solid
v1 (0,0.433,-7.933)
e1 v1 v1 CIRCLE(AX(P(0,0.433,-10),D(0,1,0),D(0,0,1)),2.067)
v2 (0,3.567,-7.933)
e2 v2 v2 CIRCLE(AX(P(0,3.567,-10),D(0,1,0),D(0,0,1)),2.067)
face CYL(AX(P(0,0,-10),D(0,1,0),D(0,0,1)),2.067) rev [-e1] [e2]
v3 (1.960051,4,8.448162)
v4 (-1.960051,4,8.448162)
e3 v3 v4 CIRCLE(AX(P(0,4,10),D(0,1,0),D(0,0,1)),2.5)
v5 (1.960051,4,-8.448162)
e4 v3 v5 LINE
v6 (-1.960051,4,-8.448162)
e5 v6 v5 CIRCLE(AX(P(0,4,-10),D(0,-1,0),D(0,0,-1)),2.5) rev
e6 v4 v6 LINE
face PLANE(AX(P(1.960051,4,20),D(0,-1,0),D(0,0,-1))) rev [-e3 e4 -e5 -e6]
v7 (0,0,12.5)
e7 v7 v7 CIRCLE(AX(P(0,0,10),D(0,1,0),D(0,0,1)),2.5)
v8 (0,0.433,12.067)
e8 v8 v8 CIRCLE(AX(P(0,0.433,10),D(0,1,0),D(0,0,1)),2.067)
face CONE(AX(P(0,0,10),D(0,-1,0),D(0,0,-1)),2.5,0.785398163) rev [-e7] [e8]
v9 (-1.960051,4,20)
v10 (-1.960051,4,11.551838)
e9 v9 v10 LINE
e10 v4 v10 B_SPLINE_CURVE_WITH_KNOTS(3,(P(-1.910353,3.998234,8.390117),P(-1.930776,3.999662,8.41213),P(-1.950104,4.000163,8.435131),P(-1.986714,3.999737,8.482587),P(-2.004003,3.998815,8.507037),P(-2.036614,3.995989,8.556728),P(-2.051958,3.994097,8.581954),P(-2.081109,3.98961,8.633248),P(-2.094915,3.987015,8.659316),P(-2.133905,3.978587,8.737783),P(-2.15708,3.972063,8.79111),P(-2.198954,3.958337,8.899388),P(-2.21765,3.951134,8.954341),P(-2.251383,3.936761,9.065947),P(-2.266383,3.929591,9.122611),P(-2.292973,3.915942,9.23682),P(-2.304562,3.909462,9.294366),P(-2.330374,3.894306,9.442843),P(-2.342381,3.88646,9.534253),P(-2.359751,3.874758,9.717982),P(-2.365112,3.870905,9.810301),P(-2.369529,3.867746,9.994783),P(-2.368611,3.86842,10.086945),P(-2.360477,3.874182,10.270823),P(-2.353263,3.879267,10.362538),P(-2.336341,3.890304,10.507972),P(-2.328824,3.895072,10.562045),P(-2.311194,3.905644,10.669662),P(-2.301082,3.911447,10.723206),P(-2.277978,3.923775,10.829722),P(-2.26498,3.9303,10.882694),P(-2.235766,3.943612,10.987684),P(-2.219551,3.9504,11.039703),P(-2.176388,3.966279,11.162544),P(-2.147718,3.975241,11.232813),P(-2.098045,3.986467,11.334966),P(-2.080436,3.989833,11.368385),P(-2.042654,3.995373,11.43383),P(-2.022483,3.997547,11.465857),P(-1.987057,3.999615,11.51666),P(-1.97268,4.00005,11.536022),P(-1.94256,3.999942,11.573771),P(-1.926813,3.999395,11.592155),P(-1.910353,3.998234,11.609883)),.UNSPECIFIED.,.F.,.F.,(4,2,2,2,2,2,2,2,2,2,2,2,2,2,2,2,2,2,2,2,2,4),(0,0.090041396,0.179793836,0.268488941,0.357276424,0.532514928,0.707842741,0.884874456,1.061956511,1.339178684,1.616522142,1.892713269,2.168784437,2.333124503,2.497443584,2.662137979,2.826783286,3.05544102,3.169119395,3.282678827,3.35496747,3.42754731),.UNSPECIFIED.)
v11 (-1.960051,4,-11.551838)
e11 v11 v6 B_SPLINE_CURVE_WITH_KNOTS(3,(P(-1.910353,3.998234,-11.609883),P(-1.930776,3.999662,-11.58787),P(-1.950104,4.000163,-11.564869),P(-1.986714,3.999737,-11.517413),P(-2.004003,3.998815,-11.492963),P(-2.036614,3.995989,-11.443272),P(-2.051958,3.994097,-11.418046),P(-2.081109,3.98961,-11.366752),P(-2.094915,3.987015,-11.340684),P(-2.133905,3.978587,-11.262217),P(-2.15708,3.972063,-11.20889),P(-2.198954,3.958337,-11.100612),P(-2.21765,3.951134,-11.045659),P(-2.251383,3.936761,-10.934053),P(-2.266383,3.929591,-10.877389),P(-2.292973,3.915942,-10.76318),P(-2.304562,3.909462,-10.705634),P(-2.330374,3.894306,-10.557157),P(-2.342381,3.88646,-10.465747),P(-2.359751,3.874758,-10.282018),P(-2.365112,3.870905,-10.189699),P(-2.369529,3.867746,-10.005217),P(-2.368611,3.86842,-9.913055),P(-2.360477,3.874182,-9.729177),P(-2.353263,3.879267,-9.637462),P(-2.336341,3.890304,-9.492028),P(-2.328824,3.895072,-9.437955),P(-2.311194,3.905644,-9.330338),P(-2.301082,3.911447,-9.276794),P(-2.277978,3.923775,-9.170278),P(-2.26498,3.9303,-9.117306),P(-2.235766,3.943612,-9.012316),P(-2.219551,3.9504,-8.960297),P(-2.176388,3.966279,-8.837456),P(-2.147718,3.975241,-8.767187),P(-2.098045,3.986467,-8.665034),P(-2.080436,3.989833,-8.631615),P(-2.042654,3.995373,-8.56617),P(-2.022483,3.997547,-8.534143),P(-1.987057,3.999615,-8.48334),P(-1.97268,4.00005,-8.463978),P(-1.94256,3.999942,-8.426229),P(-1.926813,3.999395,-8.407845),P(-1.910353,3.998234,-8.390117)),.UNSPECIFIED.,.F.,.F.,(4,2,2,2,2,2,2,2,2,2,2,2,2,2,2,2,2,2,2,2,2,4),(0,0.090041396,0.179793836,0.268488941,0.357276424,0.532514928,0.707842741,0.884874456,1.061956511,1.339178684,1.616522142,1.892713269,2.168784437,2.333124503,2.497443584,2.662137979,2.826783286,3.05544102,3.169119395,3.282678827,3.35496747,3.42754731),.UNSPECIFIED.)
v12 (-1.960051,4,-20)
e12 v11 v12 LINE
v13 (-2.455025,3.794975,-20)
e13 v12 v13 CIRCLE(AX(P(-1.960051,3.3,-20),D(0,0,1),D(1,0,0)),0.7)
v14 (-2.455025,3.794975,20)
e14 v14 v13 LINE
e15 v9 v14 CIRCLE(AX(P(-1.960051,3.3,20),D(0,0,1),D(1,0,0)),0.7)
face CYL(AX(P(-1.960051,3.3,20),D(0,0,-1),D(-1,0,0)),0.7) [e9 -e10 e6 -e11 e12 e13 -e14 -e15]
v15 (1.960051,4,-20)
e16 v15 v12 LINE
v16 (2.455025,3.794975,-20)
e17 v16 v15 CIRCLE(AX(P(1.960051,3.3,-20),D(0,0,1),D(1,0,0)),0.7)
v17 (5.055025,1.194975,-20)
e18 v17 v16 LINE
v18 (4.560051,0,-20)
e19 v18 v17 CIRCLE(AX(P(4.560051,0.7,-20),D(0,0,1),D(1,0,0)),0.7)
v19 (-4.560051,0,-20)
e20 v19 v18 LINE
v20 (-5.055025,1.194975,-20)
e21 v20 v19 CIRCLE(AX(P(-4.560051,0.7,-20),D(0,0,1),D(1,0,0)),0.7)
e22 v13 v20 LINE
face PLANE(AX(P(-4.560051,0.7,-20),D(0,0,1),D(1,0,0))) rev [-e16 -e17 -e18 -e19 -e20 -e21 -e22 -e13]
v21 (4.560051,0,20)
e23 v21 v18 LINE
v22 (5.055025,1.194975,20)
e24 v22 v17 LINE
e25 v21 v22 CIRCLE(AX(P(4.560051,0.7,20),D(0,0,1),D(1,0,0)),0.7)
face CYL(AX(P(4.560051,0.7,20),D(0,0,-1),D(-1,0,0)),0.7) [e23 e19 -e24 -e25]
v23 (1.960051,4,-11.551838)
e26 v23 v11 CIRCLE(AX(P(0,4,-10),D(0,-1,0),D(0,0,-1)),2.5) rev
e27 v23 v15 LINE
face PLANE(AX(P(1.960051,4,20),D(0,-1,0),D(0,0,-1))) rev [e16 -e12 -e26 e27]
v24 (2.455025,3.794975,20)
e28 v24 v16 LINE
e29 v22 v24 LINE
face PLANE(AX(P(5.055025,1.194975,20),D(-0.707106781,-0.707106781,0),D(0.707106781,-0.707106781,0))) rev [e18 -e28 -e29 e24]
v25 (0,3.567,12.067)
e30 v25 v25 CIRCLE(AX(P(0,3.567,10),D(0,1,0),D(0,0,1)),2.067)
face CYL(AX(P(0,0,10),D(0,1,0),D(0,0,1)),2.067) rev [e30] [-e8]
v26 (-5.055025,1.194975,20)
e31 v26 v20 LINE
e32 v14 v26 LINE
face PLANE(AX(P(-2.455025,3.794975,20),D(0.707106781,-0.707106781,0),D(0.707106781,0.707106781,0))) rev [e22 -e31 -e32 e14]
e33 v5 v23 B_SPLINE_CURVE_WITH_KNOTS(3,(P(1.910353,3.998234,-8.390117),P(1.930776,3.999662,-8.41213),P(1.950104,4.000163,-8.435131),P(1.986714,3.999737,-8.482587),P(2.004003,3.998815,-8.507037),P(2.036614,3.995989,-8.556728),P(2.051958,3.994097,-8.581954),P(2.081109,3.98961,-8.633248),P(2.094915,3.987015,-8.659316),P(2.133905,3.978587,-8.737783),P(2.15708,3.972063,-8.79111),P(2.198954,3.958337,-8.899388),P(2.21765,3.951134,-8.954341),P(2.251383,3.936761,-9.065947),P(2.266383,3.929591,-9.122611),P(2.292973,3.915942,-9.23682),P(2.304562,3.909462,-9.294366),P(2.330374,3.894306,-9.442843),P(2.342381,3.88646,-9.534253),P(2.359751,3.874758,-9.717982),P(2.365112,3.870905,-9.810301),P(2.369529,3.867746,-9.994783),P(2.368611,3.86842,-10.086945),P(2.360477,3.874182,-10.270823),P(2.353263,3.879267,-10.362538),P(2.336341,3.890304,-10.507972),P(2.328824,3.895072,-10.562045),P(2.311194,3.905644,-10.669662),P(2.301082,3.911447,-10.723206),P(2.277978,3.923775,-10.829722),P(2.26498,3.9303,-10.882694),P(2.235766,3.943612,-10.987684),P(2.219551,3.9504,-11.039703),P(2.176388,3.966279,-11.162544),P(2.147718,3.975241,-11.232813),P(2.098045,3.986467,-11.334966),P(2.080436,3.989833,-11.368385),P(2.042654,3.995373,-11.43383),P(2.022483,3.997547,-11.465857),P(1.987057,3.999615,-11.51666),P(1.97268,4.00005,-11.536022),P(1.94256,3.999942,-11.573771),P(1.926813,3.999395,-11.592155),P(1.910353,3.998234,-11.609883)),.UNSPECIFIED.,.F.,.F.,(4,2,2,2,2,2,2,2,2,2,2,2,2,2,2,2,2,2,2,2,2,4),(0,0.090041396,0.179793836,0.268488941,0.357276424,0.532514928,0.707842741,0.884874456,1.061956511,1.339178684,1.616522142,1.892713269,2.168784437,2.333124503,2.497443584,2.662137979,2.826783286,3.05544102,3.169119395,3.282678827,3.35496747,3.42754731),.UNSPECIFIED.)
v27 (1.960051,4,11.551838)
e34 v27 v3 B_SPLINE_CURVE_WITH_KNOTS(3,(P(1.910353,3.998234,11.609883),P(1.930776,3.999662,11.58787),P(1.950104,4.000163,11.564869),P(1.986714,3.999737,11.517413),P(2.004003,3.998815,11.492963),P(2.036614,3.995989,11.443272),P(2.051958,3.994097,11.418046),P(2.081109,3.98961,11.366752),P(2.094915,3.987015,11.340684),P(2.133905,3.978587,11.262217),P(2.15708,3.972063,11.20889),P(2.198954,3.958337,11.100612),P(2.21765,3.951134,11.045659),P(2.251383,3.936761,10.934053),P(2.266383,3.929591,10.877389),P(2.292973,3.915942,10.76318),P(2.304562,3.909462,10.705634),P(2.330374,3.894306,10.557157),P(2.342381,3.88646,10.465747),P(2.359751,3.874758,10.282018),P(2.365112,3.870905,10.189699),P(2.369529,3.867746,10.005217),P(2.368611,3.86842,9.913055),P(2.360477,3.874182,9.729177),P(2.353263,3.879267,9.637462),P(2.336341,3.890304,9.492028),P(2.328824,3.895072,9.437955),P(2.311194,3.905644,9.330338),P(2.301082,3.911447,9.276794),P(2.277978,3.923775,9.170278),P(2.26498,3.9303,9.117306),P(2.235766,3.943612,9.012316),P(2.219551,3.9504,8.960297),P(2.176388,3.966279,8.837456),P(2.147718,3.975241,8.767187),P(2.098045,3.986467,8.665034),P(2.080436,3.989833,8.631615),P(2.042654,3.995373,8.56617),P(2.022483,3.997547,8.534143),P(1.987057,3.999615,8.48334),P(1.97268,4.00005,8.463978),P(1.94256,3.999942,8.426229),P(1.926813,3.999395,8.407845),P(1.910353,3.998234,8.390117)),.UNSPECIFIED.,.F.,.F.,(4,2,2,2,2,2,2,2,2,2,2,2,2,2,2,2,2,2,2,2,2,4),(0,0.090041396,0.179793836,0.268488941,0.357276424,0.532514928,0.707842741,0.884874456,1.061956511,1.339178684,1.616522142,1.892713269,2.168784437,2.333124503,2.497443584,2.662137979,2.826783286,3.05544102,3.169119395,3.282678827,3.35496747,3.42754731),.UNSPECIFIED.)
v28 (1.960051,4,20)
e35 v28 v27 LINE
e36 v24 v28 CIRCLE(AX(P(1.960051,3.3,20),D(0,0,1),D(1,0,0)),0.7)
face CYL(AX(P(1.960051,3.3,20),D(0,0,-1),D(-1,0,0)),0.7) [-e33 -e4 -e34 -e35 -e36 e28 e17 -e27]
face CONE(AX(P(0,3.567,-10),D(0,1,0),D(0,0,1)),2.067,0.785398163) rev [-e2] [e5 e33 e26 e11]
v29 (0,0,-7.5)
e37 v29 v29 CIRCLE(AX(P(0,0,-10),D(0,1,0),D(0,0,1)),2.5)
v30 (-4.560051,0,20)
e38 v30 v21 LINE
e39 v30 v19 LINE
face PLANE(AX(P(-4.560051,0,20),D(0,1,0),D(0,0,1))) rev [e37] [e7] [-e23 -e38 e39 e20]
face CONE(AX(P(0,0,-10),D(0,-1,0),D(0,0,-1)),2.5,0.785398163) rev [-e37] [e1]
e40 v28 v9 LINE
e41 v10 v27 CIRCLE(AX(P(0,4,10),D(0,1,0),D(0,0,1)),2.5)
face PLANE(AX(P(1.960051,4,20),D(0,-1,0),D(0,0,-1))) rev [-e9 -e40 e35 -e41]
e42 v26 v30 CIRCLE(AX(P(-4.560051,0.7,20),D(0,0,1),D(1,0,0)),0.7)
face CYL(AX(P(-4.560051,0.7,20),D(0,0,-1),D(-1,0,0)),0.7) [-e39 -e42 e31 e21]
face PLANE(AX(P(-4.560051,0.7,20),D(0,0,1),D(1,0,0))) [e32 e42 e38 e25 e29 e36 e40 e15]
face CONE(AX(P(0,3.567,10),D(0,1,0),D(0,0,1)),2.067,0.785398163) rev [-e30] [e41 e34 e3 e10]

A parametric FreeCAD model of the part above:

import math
import FreeCAD as App
import Part
import Sketcher


def add_polygon(sketch, points):
    """Adds a closed chain of lines whose ends are joined by coincident constraints."""
    first, n = sketch.GeometryCount, len(points)
    for a, b in zip(points, points[1:] + points[:1]):
        sketch.addGeometry(Part.LineSegment(App.Vector(*a, 0), App.Vector(*b, 0)), False)
    for i in range(n):
        sketch.addConstraint(Sketcher.Constraint("Coincident", first + i, 2, first + (i + 1) % n, 1))

doc = App.newDocument("Part")
params = doc.addObject("Spreadsheet::Sheet", "Params")
for row, (alias, value) in enumerate([
    ("sketch1_radius", "0.7 mm"),
    ("pad1_length", "20 mm"),
    ("pad1_length2", "20 mm"),
    ("sketch2_width", "4 mm"),
    ("sketch2_height", "2.5 mm"),
    ("groove_angle", "360 deg"),
    ("sketch3_width", "4 mm"),
    ("sketch3_height", "2.5 mm"),
    ("groove2_angle", "360 deg"),
], start=1):
    params.set(f"A{row}", alias)
    params.set(f"B{row}", "=" + value)
    params.setAlias(f"B{row}", alias)

body = doc.addObject("PartDesign::Body", "Body")

# Sketch on XY plane
sketch1 = doc.addObject("Sketcher::SketchObject", "Sketch")
body.addObject(sketch1)
sketch1.AttachmentSupport = (doc.XY_Plane, [""])
sketch1.MapMode = "FlatFace"
sketch1.addGeometry([
    Part.LineSegment(App.Vector(-4.6, 0, 0), App.Vector(4.6, 0, 0)),  # 0
    Part.ArcOfCircle(Part.Circle(App.Vector(4.6, 0.7, 0), App.Vector(0, 0, 1), 0.7), math.radians(-90), math.radians(45)),  # 1
    Part.LineSegment(App.Vector(5.1, 1.2, 0), App.Vector(2.5, 3.8, 0)),  # 2
    Part.ArcOfCircle(Part.Circle(App.Vector(2, 3.3, 0), App.Vector(0, 0, 1), 0.7), math.radians(45), math.radians(90)),  # 3
    Part.LineSegment(App.Vector(2, 4, 0), App.Vector(-2, 4, 0)),  # 4
    Part.ArcOfCircle(Part.Circle(App.Vector(-2, 3.3, 0), App.Vector(0, 0, 1), 0.7), math.radians(90), math.radians(135)),  # 5
    Part.LineSegment(App.Vector(-2.5, 3.8, 0), App.Vector(-5.1, 1.2, 0)),  # 6
    Part.ArcOfCircle(Part.Circle(App.Vector(-4.6, 0.7, 0), App.Vector(0, 0, 1), 0.7), math.radians(135), math.radians(270)),  # 7
], False)
sketch1.addConstraint([
    Sketcher.Constraint("Tangent", 0, 2, 1, 1),
    Sketcher.Constraint("Tangent", 1, 2, 2, 1),
    Sketcher.Constraint("Tangent", 2, 2, 3, 1),
    Sketcher.Constraint("Tangent", 3, 2, 4, 1),
    Sketcher.Constraint("Tangent", 4, 2, 5, 1),
    Sketcher.Constraint("Tangent", 5, 2, 6, 1),
    Sketcher.Constraint("Tangent", 6, 2, 7, 1),
    Sketcher.Constraint("Tangent", 7, 2, 0, 1),
    Sketcher.Constraint("Horizontal", 0),
    Sketcher.Constraint("Horizontal", 4),
    Sketcher.Constraint("Equal", 1, 3),
    Sketcher.Constraint("Equal", 3, 5),
    Sketcher.Constraint("Equal", 5, 7),
    Sketcher.Constraint("Symmetric", 0, 2, 7, 2, -1, 1),
    Sketcher.Constraint("Perpendicular", 2, 6),
    Sketcher.Constraint("Horizontal", 2, 2, 5, 2),
    Sketcher.Constraint("Radius", 1, 0.7),
    Sketcher.Constraint("DistanceY", -1, 1, 3, 2, 4.0),
    Sketcher.Constraint("DistanceX", 0, 1, 0, 2, 9.120101),
])
sketch1.setExpression("Constraints[16]", "Params.sketch1_radius")
pad1 = doc.addObject("PartDesign::Pad", "Pad")
body.addObject(pad1)
pad1.Profile = sketch1
pad1.Type = "TwoLengths"
pad1.setExpression("Length", "Params.pad1_length")
pad1.setExpression("Length2", "Params.pad1_length2")

# Sketch on YZ plane
sketch2 = doc.addObject("Sketcher::SketchObject", "Sketch001")
body.addObject(sketch2)
sketch2.AttachmentSupport = (doc.YZ_Plane, [""])
sketch2.MapMode = "FlatFace"
add_polygon(sketch2, [(4, 7.5), (4, 10), (0, 10), (0, 7.5), (0.4, 7.9), (3.6, 7.9)])  # lines 0-5
sketch2.addGeometry(Part.LineSegment(App.Vector(0, 10, 0), App.Vector(4, 10, 0)), True)  # axis
sketch2.addConstraint([
    Sketcher.Constraint("Vertical", 0),
    Sketcher.Constraint("Horizontal", 1),
    Sketcher.Constraint("Vertical", 2),
    Sketcher.Constraint("Horizontal", 4),
    Sketcher.Constraint("Horizontal", 6),
    Sketcher.Constraint("Coincident", 6, 1, 1, 2),
    Sketcher.Constraint("PointOnObject", 1, 2, -2),
    Sketcher.Constraint("Perpendicular", 3, 5),
    Sketcher.Constraint("Horizontal", 2, 2, 5, 2),
    Sketcher.Constraint("Vertical", 5, 2, 6, 2),
    Sketcher.Constraint("Equal", 3, 5),
    Sketcher.Constraint("DistanceX", 1, 2, 1, 1, 4.0),
    Sketcher.Constraint("DistanceY", 0, 1, 0, 2, 2.5),
    Sketcher.Constraint("DistanceY", -1, 1, 0, 2, 10.0),
    Sketcher.Constraint("DistanceX", 4, 1, 4, 2, 3.134),
])
sketch2.setExpression("Constraints[17]", "Params.sketch2_width")
sketch2.setExpression("Constraints[18]", "Params.sketch2_height")
groove = doc.addObject("PartDesign::Groove", "Groove")
body.addObject(groove)
groove.Profile = sketch2
groove.ReferenceAxis = (sketch2, ["Axis0"])
groove.setExpression("Angle", "Params.groove_angle")

# Sketch on YZ plane
sketch3 = doc.addObject("Sketcher::SketchObject", "Sketch002")
body.addObject(sketch3)
sketch3.AttachmentSupport = (doc.YZ_Plane, [""])
sketch3.MapMode = "FlatFace"
add_polygon(sketch3, [(4, -12.5), (4, -10), (0, -10), (0, -12.5), (0.4, -12.1), (3.6, -12.1)])  # lines 0-5
sketch3.addGeometry(Part.LineSegment(App.Vector(0, -10, 0), App.Vector(4, -10, 0)), True)  # axis
sketch3.addConstraint([
    Sketcher.Constraint("Vertical", 0),
    Sketcher.Constraint("Horizontal", 1),
    Sketcher.Constraint("Vertical", 2),
    Sketcher.Constraint("Horizontal", 4),
    Sketcher.Constraint("Horizontal", 6),
    Sketcher.Constraint("Coincident", 6, 1, 1, 2),
    Sketcher.Constraint("PointOnObject", 1, 2, -2),
    Sketcher.Constraint("Perpendicular", 3, 5),
    Sketcher.Constraint("Horizontal", 2, 2, 5, 2),
    Sketcher.Constraint("Vertical", 5, 2, 6, 2),
    Sketcher.Constraint("Equal", 3, 5),
    Sketcher.Constraint("DistanceX", 1, 2, 1, 1, 4.0),
    Sketcher.Constraint("DistanceY", 0, 1, 0, 2, 2.5),
    Sketcher.Constraint("DistanceY", 0, 2, -1, 1, 10.0),
    Sketcher.Constraint("DistanceX", 4, 1, 4, 2, 3.134),
])
sketch3.setExpression("Constraints[17]", "Params.sketch3_width")
sketch3.setExpression("Constraints[18]", "Params.sketch3_height")
groove2 = doc.addObject("PartDesign::Groove", "Groove001")
body.addObject(groove2)
groove2.Profile = sketch3
groove2.ReferenceAxis = (sketch3, ["Axis0"])
groove2.setExpression("Angle", "Params.groove2_angle")

doc.recompute()
